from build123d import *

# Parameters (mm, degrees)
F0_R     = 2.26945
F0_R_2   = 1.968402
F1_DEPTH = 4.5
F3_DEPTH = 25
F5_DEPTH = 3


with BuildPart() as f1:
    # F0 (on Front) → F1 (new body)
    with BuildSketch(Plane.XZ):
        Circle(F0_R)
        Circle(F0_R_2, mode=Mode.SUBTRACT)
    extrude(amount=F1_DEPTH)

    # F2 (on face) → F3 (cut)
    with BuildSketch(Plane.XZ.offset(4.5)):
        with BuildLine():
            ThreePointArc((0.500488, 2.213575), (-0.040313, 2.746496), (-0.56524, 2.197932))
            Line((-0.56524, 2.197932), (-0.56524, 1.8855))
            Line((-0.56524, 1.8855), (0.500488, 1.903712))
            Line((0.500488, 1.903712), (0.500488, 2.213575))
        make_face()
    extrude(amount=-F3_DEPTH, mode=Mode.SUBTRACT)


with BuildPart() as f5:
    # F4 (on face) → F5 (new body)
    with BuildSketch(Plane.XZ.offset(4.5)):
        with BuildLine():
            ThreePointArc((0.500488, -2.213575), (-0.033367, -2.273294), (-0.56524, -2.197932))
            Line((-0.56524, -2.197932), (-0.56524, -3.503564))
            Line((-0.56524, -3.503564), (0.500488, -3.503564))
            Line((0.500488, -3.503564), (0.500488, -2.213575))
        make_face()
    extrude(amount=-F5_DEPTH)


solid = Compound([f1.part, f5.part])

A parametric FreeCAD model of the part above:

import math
import FreeCAD as App
import Part
import Sketcher

V = App.Vector

doc = App.newDocument("Part")
body = doc.addObject("PartDesign::Body", "Body")

sketch1 = body.newObject("Sketcher::SketchObject", "Sketch")
sketch1.AttachmentSupport = (doc.getObject("XZ_Plane"), [""])
sketch1.MapMode = "FlatFace"
sketch1.addGeometry(Part.Circle(V(0, 0, 0), V(0, 0, 1), 2.3), False)
sketch1.addGeometry(Part.Circle(V(0, 0, 0), V(0, 0, 1), 2), False)
sketch1.addConstraint(Sketcher.Constraint("Coincident", 0, 3, -1, 1))
sketch1.addConstraint(Sketcher.Constraint("Coincident", 1, 3, -1, 1))
sketch1.addConstraint(Sketcher.Constraint("Diameter", 0, 4.5389))
sketch1.addConstraint(Sketcher.Constraint("Diameter", 1, 3.936804))
pad1 = body.newObject("PartDesign::Pad", "Pad")
pad1.Profile = sketch1
pad1.Length = 4.5

sketch2 = body.newObject("Sketcher::SketchObject", "Sketch001")
sketch2.AttachmentSupport = (doc.getObject("XZ_Plane"), [""])
sketch2.MapMode = "FlatFace"
sketch2.AttachmentOffset = App.Placement(V(0, 0, 4.5), App.Rotation())
sketch2.addGeometry(Part.ArcOfCircle(Part.Circle(V(-0.03, 2.21, 0), V(0, 0, 1), 0.53), math.radians(0), math.radians(182)), False)
sketch2.addGeometry(Part.LineSegment(V(-0.57, 2.2, 0), V(-0.57, 1.89, 0)), False)
sketch2.addGeometry(Part.LineSegment(V(-0.57, 1.89, 0), V(0.5, 1.9, 0)), False)
sketch2.addGeometry(Part.LineSegment(V(0.5, 1.9, 0), V(0.5, 2.21, 0)), False)
sketch2.addConstraint(Sketcher.Constraint("Coincident", 0, 2, 1, 1))
sketch2.addConstraint(Sketcher.Constraint("Coincident", 1, 2, 2, 1))
sketch2.addConstraint(Sketcher.Constraint("Coincident", 2, 2, 3, 1))
sketch2.addConstraint(Sketcher.Constraint("Tangent", 3, 2, 0, 1))
sketch2.addConstraint(Sketcher.Constraint("Vertical", 1))
sketch2.addConstraint(Sketcher.Constraint("Vertical", 3))
sketch2.addConstraint(Sketcher.Constraint("Radius", 0, 0.532979))
sketch2.addConstraint(Sketcher.Constraint("DistanceY", -1, 1, 1, 2, 1.8855))
sketch2.addConstraint(Sketcher.Constraint("DistanceY", 1, 2, 1, 1, 0.312432))
sketch2.addConstraint(Sketcher.Constraint("DistanceY", 3, 1, 3, 2, 0.309863))
sketch2.addConstraint(Sketcher.Constraint("DistanceX", 0, 3, -1, 1, 0.032491))
sketch2.addConstraint(Sketcher.Constraint("DistanceX", 0, 2, -1, 1, 0.56524))
pocket1 = body.newObject("PartDesign::Pocket", "Pocket")
pocket1.Profile = sketch2
pocket1.Length = 25
body2 = doc.addObject("PartDesign::Body", "Body001")

sketch3 = body2.newObject("Sketcher::SketchObject", "Sketch002")
sketch3.AttachmentSupport = (doc.getObject("XZ_Plane001"), [""])
sketch3.MapMode = "FlatFace"
sketch3.AttachmentOffset = App.Placement(V(0, 0, 4.5), App.Rotation())
sketch3.addGeometry(Part.ArcOfCircle(Part.Circle(V(0, -0.1, 0), V(0, 0, 1), 2.1), math.radians(-105), math.radians(-76)), False)
sketch3.addGeometry(Part.LineSegment(V(-0.6, -2.2, 0), V(-0.6, -3.5, 0)), False)
sketch3.addGeometry(Part.LineSegment(V(-0.6, -3.5, 0), V(0.5, -3.5, 0)), False)
sketch3.addGeometry(Part.LineSegment(V(0.5, -3.5, 0), V(0.5, -2.2, 0)), False)
sketch3.addConstraint(Sketcher.Constraint("Coincident", 0, 1, 1, 1))
sketch3.addConstraint(Sketcher.Constraint("Coincident", 1, 2, 2, 1))
sketch3.addConstraint(Sketcher.Constraint("Coincident", 2, 2, 3, 1))
sketch3.addConstraint(Sketcher.Constraint("Coincident", 3, 2, 0, 2))
sketch3.addConstraint(Sketcher.Constraint("Vertical", 1))
sketch3.addConstraint(Sketcher.Constraint("Horizontal", 2))
sketch3.addConstraint(Sketcher.Constraint("Vertical", 3))
sketch3.addConstraint(Sketcher.Constraint("Radius", 0, 2.136028))
sketch3.addConstraint(Sketcher.Constraint("DistanceY", 1, 2, 1, 1, 1.305632))
sketch3.addConstraint(Sketcher.Constraint("DistanceY", 3, 1, 3, 2, 1.289989))
sketch3.addConstraint(Sketcher.Constraint("DistanceX", 2, 1, 2, 2, 1.065728))
sketch3.addConstraint(Sketcher.Constraint("DistanceX", 0, 1, -1, 1, 0.56524))
sketch3.addConstraint(Sketcher.Constraint("DistanceY", 0, 1, -1, 1, 2.197932))
pad2 = body2.newObject("PartDesign::Pad", "Pad001")
pad2.Profile = sketch3
pad2.Length = 3
pad2.Reversed = True

doc.recompute()
